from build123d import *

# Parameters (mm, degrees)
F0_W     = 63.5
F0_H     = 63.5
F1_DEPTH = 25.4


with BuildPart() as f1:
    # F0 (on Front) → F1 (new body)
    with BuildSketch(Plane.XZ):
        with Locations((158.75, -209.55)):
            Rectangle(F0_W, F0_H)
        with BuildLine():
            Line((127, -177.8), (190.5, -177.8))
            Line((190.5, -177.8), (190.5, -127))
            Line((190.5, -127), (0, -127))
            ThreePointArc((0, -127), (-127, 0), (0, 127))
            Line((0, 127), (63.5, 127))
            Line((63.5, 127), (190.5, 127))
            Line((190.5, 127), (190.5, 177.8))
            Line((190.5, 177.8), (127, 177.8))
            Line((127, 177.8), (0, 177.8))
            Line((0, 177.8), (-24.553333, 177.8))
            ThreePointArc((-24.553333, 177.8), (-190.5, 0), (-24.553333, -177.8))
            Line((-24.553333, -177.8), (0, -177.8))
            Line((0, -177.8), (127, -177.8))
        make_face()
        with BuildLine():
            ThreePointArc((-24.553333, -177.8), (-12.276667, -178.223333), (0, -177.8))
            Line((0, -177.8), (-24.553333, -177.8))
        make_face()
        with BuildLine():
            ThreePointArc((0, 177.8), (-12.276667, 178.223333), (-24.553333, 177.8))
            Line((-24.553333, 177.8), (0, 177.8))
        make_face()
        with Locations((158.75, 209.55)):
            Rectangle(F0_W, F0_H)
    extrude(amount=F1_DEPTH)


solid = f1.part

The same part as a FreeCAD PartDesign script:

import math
import FreeCAD as App
import Part
import Sketcher
from FreeCAD import Vector
Q = App.Units.Quantity

doc = App.newDocument("Part")
params = doc.addObject("Spreadsheet::Sheet", "Params")
for row, (alias, value) in enumerate([
    ("sketch1_radius", "5 in"),
    ("sketch1_width", "5 in"),
    ("sketch1_width2", "5 in"),
    ("sketch1_width3", "2.5 in"),
    ("sketch1_width4", "7.5 in"),
    ("pad1_length", "1 in"),
], start=1):
    params.set(f"A{row}", alias)
    params.set(f"B{row}", "=" + value)
    params.setAlias(f"B{row}", alias)

body = doc.addObject("PartDesign::Body", "Body")

# Sketch on XZ plane
sketch1 = doc.addObject("Sketcher::SketchObject", "Sketch")
body.addObject(sketch1)
sketch1.AttachmentSupport = (doc.XZ_Plane, [""])
sketch1.MapMode = "FlatFace"
sketch1.addGeometry(Part.LineSegment(Vector(127, -177.8, 0), Vector(127, -241.3, 0)), False)
sketch1.addGeometry(Part.LineSegment(Vector(127, -241.3, 0), Vector(190.5, -241.3, 0)), False)
sketch1.addGeometry(Part.LineSegment(Vector(190.5, -241.3, 0), Vector(190.5, -127, 0)), False)
sketch1.addGeometry(Part.LineSegment(Vector(190.5, -127, 0), Vector(0, -127, 0)), False)
sketch1.addGeometry(Part.ArcOfCircle(Part.Circle(Vector(0, 0, 0), Vector(0, 0, 1), 127), math.radians(90), math.radians(270)), False)
sketch1.addGeometry(Part.LineSegment(Vector(0, 127, 0), Vector(190.5, 127, 0)), False)
sketch1.addGeometry(Part.LineSegment(Vector(190.5, 127, 0), Vector(190.5, 241.3, 0)), False)
sketch1.addGeometry(Part.LineSegment(Vector(190.5, 241.3, 0), Vector(127, 241.3, 0)), False)
sketch1.addGeometry(Part.LineSegment(Vector(127, 241.3, 0), Vector(127, 177.8, 0)), False)
sketch1.addGeometry(Part.LineSegment(Vector(127, 177.8, 0), Vector(0, 177.8, 0)), False)
sketch1.addGeometry(Part.ArcOfCircle(Part.Circle(Vector(-12.276666, -0.000135, 0), Vector(0, 0, 1), 178.223468), math.radians(86.050135), math.radians(93.949865)), False)
sketch1.addGeometry(Part.ArcOfCircle(Part.Circle(Vector(-12.276667, 0, 0), Vector(0, 0, 1), 178.223333), math.radians(93.949868), math.radians(266.050132)), False)
sketch1.addGeometry(Part.ArcOfCircle(Part.Circle(Vector(-12.276666, 0.000135, 0), Vector(0, 0, 1), 178.223468), math.radians(-93.949865), math.radians(-86.050135)), False)
sketch1.addGeometry(Part.LineSegment(Vector(0, -177.8, 0), Vector(127, -177.8, 0)), False)
sketch1.addConstraint(Sketcher.Constraint("Coincident", 0, 2, 1, 1))
sketch1.addConstraint(Sketcher.Constraint("Coincident", 1, 2, 2, 1))
sketch1.addConstraint(Sketcher.Constraint("Coincident", 2, 2, 3, 1))
sketch1.addConstraint(Sketcher.Constraint("Coincident", 3, 2, 4, 2))
sketch1.addConstraint(Sketcher.Constraint("Coincident", 4, 1, 5, 1))
sketch1.addConstraint(Sketcher.Constraint("Coincident", 5, 2, 6, 1))
sketch1.addConstraint(Sketcher.Constraint("Coincident", 6, 2, 7, 1))
sketch1.addConstraint(Sketcher.Constraint("Coincident", 7, 2, 8, 1))
sketch1.addConstraint(Sketcher.Constraint("Coincident", 8, 2, 9, 1))
sketch1.addConstraint(Sketcher.Constraint("Coincident", 9, 2, 10, 1))
sketch1.addConstraint(Sketcher.Constraint("Coincident", 10, 2, 11, 1))
sketch1.addConstraint(Sketcher.Constraint("Coincident", 11, 2, 12, 1))
sketch1.addConstraint(Sketcher.Constraint("Coincident", 12, 2, 13, 1))
sketch1.addConstraint(Sketcher.Constraint("Coincident", 13, 2, 0, 1))
sketch1.addConstraint(Sketcher.Constraint("Vertical", 0))
sketch1.addConstraint(Sketcher.Constraint("Horizontal", 1))
sketch1.addConstraint(Sketcher.Constraint("Vertical", 2))
sketch1.addConstraint(Sketcher.Constraint("Horizontal", 3))
sketch1.addConstraint(Sketcher.Constraint("Horizontal", 5))
sketch1.addConstraint(Sketcher.Constraint("Vertical", 6))
sketch1.addConstraint(Sketcher.Constraint("Horizontal", 7))
sketch1.addConstraint(Sketcher.Constraint("Vertical", 8))
sketch1.addConstraint(Sketcher.Constraint("Horizontal", 9))
sketch1.addConstraint(Sketcher.Constraint("Horizontal", 13))
sketch1.addConstraint(Sketcher.Constraint("Coincident", 4, 3, -1, 1))
sketch1.addConstraint(Sketcher.Constraint("PointOnObject", 11, 3, -1))
sketch1.addConstraint(Sketcher.Constraint("PointOnObject", 3, 2, -2))
sketch1.addConstraint(Sketcher.Constraint("PointOnObject", 4, 1, -2))
sketch1.addConstraint(Sketcher.Constraint("PointOnObject", 9, 2, -2))
sketch1.addConstraint(Sketcher.Constraint("PointOnObject", 12, 2, -2))
sketch1.addConstraint(Sketcher.Constraint("Radius", 4, Q("5 in")))
sketch1.addConstraint(Sketcher.Constraint("DistanceX", 9, 2, 9, 1, Q("5 in")))
sketch1.addConstraint(Sketcher.Constraint("DistanceX", 13, 1, 13, 2, Q("5 in")))
sketch1.addConstraint(Sketcher.Constraint("DistanceX", 1, 1, 1, 2, Q("2.5 in")))
sketch1.addConstraint(Sketcher.Constraint("DistanceX", 5, 1, 5, 2, Q("7.5 in")))
sketch1.addConstraint(Sketcher.Constraint("DistanceY", 0, 2, 0, 1, Q("2.5 in")))
sketch1.addConstraint(Sketcher.Constraint("DistanceY", 2, 1, 2, 2, Q("4.5 in")))
sketch1.addConstraint(Sketcher.Constraint("DistanceY", 6, 1, 6, 2, Q("4.5 in")))
sketch1.addConstraint(Sketcher.Constraint("DistanceY", 8, 2, 8, 1, Q("2.5 in")))
sketch1.addConstraint(Sketcher.Constraint("DistanceY", -1, 1, 10, 2, Q("7 in")))
sketch1.addConstraint(Sketcher.Constraint("DistanceY", 11, 2, -1, 1, Q("7 in")))
sketch1.addConstraint(Sketcher.Constraint("Radius", 10, 178.223468))
sketch1.addConstraint(Sketcher.Constraint("Radius", 12, 178.223468))
sketch1.addConstraint(Sketcher.Constraint("Radius", 11, 178.223333))
sketch1.addConstraint(Sketcher.Constraint("DistanceY", 10, 3, 12, 3, 0.000271))
sketch1.setExpression("Constraints[30]", "Params.sketch1_radius")
sketch1.setExpression("Constraints[31]", "Params.sketch1_width")
sketch1.setExpression("Constraints[32]", "Params.sketch1_width2")
sketch1.setExpression("Constraints[33]", "Params.sketch1_width3")
sketch1.setExpression("Constraints[34]", "Params.sketch1_width4")
pad1 = doc.addObject("PartDesign::Pad", "Pad")
body.addObject(pad1)
pad1.Profile = sketch1
pad1.setExpression("Length", "Params.pad1_length")

doc.recompute()
